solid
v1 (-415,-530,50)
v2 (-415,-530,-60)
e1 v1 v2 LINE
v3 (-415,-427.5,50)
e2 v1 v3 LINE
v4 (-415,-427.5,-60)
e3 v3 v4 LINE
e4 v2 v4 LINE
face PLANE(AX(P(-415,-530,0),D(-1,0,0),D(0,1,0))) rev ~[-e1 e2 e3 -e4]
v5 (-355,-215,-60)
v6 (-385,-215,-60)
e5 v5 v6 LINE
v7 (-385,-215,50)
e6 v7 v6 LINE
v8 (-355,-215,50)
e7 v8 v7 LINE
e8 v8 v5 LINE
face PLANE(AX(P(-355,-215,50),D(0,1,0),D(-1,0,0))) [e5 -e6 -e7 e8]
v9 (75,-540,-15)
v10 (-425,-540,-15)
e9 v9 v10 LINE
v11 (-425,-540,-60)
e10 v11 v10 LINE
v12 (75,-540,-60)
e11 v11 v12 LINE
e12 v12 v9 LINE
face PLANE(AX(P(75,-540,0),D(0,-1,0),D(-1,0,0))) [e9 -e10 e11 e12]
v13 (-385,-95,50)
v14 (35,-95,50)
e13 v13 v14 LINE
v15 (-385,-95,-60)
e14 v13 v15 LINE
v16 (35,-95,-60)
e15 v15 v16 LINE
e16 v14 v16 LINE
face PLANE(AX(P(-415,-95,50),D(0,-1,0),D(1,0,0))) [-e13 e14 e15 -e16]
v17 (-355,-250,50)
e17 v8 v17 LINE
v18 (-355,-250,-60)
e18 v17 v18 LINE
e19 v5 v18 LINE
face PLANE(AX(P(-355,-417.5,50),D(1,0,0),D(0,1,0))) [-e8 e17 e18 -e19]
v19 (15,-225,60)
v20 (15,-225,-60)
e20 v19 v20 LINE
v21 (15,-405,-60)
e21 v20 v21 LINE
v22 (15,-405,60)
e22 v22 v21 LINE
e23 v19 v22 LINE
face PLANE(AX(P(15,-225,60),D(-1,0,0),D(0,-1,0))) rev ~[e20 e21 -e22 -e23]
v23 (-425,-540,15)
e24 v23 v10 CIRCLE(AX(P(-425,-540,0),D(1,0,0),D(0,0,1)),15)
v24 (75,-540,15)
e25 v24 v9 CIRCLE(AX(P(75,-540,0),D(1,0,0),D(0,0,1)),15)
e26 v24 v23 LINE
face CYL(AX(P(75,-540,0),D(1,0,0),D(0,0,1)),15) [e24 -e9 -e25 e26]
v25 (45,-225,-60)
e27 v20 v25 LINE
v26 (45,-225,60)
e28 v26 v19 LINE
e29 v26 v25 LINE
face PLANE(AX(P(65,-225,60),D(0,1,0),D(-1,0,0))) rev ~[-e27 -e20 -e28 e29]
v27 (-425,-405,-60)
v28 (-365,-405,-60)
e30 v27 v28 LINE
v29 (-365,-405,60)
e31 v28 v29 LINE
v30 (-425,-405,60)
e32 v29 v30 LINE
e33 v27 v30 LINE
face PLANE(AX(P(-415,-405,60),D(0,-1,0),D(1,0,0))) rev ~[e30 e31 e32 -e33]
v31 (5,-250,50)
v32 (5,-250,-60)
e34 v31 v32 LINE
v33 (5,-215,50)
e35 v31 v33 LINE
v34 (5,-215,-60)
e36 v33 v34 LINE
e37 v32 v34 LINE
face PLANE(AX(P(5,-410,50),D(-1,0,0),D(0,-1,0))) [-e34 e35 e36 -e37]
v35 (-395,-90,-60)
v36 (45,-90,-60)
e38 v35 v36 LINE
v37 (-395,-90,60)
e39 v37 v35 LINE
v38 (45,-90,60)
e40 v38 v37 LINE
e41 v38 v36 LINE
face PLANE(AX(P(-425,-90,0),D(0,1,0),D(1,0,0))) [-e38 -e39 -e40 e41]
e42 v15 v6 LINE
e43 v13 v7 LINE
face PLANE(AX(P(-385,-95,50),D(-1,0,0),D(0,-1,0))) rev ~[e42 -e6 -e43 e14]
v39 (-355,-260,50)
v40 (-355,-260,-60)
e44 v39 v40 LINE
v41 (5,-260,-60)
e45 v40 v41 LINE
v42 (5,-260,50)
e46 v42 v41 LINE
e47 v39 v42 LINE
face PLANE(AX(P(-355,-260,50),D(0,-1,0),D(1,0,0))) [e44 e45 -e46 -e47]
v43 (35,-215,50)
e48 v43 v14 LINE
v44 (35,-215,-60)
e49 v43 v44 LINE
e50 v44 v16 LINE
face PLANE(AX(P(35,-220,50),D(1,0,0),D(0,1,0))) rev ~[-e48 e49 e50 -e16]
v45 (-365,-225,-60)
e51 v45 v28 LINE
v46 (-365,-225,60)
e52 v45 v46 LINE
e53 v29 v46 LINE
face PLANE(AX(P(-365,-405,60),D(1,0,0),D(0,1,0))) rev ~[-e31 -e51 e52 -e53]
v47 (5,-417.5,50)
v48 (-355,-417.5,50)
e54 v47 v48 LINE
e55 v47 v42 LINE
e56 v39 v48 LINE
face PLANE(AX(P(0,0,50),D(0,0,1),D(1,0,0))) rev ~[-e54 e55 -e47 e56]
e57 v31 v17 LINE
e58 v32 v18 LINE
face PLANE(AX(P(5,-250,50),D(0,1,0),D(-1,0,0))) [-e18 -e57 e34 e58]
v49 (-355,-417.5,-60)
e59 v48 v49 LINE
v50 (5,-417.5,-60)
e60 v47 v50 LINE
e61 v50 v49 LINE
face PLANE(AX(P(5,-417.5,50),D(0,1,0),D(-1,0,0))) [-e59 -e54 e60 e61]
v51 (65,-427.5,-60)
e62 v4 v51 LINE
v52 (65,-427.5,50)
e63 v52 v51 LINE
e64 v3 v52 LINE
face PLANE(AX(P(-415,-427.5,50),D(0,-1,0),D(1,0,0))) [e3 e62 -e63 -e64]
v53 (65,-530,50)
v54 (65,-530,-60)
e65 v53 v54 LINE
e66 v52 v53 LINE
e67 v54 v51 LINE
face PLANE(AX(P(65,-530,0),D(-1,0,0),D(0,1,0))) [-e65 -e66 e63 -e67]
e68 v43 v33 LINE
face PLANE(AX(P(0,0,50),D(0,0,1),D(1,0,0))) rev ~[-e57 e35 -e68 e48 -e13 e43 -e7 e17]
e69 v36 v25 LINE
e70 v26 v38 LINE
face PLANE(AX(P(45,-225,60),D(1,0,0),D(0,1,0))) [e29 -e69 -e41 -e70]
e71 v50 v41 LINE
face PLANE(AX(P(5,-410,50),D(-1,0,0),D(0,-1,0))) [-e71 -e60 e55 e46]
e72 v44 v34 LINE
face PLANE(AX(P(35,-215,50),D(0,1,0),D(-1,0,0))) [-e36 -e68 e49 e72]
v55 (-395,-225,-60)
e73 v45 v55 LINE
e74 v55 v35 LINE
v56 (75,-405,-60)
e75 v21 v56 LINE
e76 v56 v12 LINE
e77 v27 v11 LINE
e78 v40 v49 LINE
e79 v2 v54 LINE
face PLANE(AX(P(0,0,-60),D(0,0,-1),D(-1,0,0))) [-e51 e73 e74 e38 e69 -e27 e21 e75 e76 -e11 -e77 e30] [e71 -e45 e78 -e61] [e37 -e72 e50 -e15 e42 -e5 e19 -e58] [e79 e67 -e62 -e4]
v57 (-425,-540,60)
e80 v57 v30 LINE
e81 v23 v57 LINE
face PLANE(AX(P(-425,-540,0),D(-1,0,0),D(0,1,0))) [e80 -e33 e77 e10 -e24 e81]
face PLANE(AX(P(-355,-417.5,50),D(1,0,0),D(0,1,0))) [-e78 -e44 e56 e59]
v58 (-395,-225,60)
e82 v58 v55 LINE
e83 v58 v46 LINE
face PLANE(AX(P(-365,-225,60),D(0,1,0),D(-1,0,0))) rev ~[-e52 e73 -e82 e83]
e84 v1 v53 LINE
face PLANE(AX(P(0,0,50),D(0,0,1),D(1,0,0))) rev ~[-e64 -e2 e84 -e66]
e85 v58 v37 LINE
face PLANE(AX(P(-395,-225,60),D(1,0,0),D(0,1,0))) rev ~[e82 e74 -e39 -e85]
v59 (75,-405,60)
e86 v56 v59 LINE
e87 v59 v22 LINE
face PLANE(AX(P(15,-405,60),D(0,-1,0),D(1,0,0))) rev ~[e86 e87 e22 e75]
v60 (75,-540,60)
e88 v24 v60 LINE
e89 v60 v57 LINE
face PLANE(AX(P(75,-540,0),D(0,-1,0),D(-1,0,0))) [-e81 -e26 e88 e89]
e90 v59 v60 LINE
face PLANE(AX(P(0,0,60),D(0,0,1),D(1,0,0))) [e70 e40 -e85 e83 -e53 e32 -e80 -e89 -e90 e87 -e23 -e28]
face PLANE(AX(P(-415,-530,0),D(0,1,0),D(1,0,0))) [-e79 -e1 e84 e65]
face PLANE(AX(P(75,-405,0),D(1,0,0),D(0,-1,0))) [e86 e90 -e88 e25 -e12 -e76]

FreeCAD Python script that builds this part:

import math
import FreeCAD as App
import Part
import Sketcher
from FreeCAD import Vector
Q = App.Units.Quantity


def add_polygon(sketch, points):
    """Adds a closed chain of lines whose ends are joined by coincident constraints."""
    first, n = sketch.GeometryCount, len(points)
    for a, b in zip(points, points[1:] + points[:1]):
        sketch.addGeometry(Part.LineSegment(App.Vector(*a, 0), App.Vector(*b, 0)), False)
    for i in range(n):
        sketch.addConstraint(Sketcher.Constraint("Coincident", first + i, 2, first + (i + 1) % n, 1))

doc = App.newDocument("Part")
params = doc.addObject("Spreadsheet::Sheet", "Params")
for row, (alias, value) in enumerate([
    ("sketch1_width", "10 mm"),
    ("sketch1_width2", "500 mm"),
    ("pad1_length", "120 mm"),
    ("sketch2_width", "50 mm"),
    ("sketch2_height", "180 mm"),
    ("sketch2_width2", "480 mm"),
    ("sketch2_height2", "125 mm"),
    ("pad2_length", "10 mm"),
    ("sketch3_width", "60 mm"),
    ("sketch3_height", "5 mm"),
    ("sketch3_height2", "190 mm"),
    ("sketch3_width2", "50 mm"),
    ("pad3_length", "110 mm"),
    ("sketch4_height", "5 mm"),
    ("sketch4_width", "480 mm"),
    ("pocket1_length", "110 mm"),
    ("sketch5_width", "480 mm"),
    ("sketch5_height", "17.5 mm"),
    ("sketch5_height2", "7.5 mm"),
    ("sketch5_width2", "60 mm"),
    ("pad4_length", "110 mm"),
    ("sketch6_height", "10 mm"),
    ("sketch6_width", "360 mm"),
    ("pad5_length", "110 mm"),
    ("sketch7_width", "30 mm"),
    ("sketch7_height", "135 mm"),
    ("pocket2_length", "120 mm"),
    ("sketch8_width", "10 mm"),
    ("sketch8_height", "125 mm"),
    ("pad6_length", "110 mm"),
    ("sketch9_radius", "15 mm"),
    ("pad7_length", "500 mm"),
    ("sketch10_height", "5 mm"),
    ("sketch10_width", "30 mm"),
    ("pad8_length", "110 mm"),
], start=1):
    params.set(f"A{row}", alias)
    params.set(f"B{row}", "=" + value)
    params.setAlias(f"B{row}", alias)

body = doc.addObject("PartDesign::Body", "Body")
body.AllowCompound = True

sketch1 = doc.addObject("Sketcher::SketchObject", "Sketch")
body.addObject(sketch1)
sketch1.AttachmentSupport = (doc.XY_Plane, [""])
sketch1.MapMode = "FlatFace"
add_polygon(sketch1, [(-415, -100), (65, -100), (65, -225), (75, -225), (75, -90), (-425, -90), (-425, -225), (-415, -225)])
add_polygon(sketch1, [(-415, -405), (-425, -405), (-425, -540), (75, -540), (75, -405), (65, -405), (65, -530), (-415, -530)])
sketch1.addConstraint([
    Sketcher.Constraint("Horizontal", 0),
    Sketcher.Constraint("Vertical", 1),
    Sketcher.Constraint("Horizontal", 2),
    Sketcher.Constraint("Vertical", 3),
    Sketcher.Constraint("Horizontal", 4),
    Sketcher.Constraint("Vertical", 5),
    Sketcher.Constraint("Horizontal", 6),
    Sketcher.Constraint("Vertical", 7),
    Sketcher.Constraint("Horizontal", 8),
    Sketcher.Constraint("Vertical", 9),
    Sketcher.Constraint("Horizontal", 10),
    Sketcher.Constraint("Vertical", 11),
    Sketcher.Constraint("Horizontal", 12),
    Sketcher.Constraint("Vertical", 13),
    Sketcher.Constraint("Horizontal", 14),
    Sketcher.Constraint("Vertical", 15),
    Sketcher.Constraint("Horizontal", 2, 2, 5, 2),
    Sketcher.Constraint("Horizontal", 8, 2, 11, 2),
    Sketcher.Constraint("Vertical", 5, 2, 8, 2),
    Sketcher.Constraint("Vertical", 3, 2, 10, 2),
    Sketcher.Constraint("Vertical", 1, 2, 12, 2),
    Sketcher.Constraint("Vertical", 7, 2, 14, 2),
    Sketcher.Constraint("Equal", 2, 6),
    Sketcher.Constraint("Equal", 5, 9),
    Sketcher.Constraint("Equal", 7, 13),
    Sketcher.Constraint("DistanceX", 2, 1, 2, 2, Q("10 mm")),
    Sketcher.Constraint("DistanceX", 4, 2, 4, 1, Q("500 mm")),
    Sketcher.Constraint("DistanceY", 3, 2, -1, 1, Q("90 mm")),
    Sketcher.Constraint("DistanceY", 0, 2, 3, 2, Q("10 mm")),
    Sketcher.Constraint("DistanceY", 8, 2, 5, 2, Q("180 mm")),
    Sketcher.Constraint("DistanceY", 9, 2, 4, 2, Q("450 mm")),
    Sketcher.Constraint("DistanceX", -1, 1, 0, 2, Q("65 mm")),
])
sketch1.setExpression("Constraints[41]", "Params.sketch1_width")
sketch1.setExpression("Constraints[42]", "Params.sketch1_width2")
pad1 = doc.addObject("PartDesign::Pad", "Pad")
body.addObject(pad1)
pad1.Profile = sketch1
pad1.setExpression("Length", "Params.pad1_length")
pad1.Midplane = True

sketch2 = doc.addObject("Sketcher::SketchObject", "Sketch001")
body.addObject(sketch2)
sketch2.AttachmentSupport = (doc.XY_Plane, [""])
sketch2.MapMode = "FlatFace"
sketch2.AttachmentOffset = App.Placement(Vector(0, 0, 60), App.Rotation())
add_polygon(sketch2, [(65, -100), (-415, -100), (-415, -225), (-365, -225), (-365, -405), (-415, -405), (-415, -530), (65, -530), (65, -405), (15, -405), (15, -225), (65, -225)])
sketch2.addConstraint([
    Sketcher.Constraint("Horizontal", 0),
    Sketcher.Constraint("Vertical", 1),
    Sketcher.Constraint("Horizontal", 2),
    Sketcher.Constraint("Vertical", 3),
    Sketcher.Constraint("Horizontal", 4),
    Sketcher.Constraint("Vertical", 5),
    Sketcher.Constraint("Horizontal", 6),
    Sketcher.Constraint("Vertical", 7),
    Sketcher.Constraint("Horizontal", 8),
    Sketcher.Constraint("Vertical", 9),
    Sketcher.Constraint("Horizontal", 10),
    Sketcher.Constraint("Vertical", 11),
    Sketcher.Constraint("Horizontal", 4, 2, 7, 2),
    Sketcher.Constraint("Horizontal", 2, 2, 9, 2),
    Sketcher.Constraint("Vertical", 1, 2, 4, 2),
    Sketcher.Constraint("Vertical", 7, 2, 10, 2),
    Sketcher.Constraint("Equal", 4, 8),
    Sketcher.Constraint("Equal", 1, 5),
    Sketcher.Constraint("DistanceX", 2, 1, 2, 2, Q("50 mm")),
    Sketcher.Constraint("DistanceY", 3, 2, 3, 1, Q("180 mm")),
    Sketcher.Constraint("DistanceX", 0, 2, 0, 1, Q("480 mm")),
    Sketcher.Constraint("DistanceY", 1, 2, 1, 1, Q("125 mm")),
    Sketcher.Constraint("DistanceX", 0, 2, -1, 1, Q("415 mm")),
    Sketcher.Constraint("DistanceY", 0, 2, -1, 1, Q("100 mm")),
])
sketch2.setExpression("Constraints[30]", "Params.sketch2_width")
sketch2.setExpression("Constraints[31]", "Params.sketch2_height")
sketch2.setExpression("Constraints[32]", "Params.sketch2_width2")
sketch2.setExpression("Constraints[33]", "Params.sketch2_height2")
pad2 = doc.addObject("PartDesign::Pad", "Pad001")
body.addObject(pad2)
pad2.Profile = sketch2
pad2.setExpression("Length", "Params.pad2_length")
pad2.Reversed = True

sketch3 = doc.addObject("Sketcher::SketchObject", "Sketch002")
body.addObject(sketch3)
sketch3.AttachmentSupport = (doc.XY_Plane, [""])
sketch3.MapMode = "FlatFace"
sketch3.AttachmentOffset = App.Placement(Vector(0, 0, 50), App.Rotation())
add_polygon(sketch3, [(-415, -410), (-415, -405), (-365, -405), (-365, -225), (-415, -225), (-415, -220), (-355, -220), (-355, -410)])
add_polygon(sketch3, [(65, -220), (65, -225), (15, -225), (15, -405), (65, -405), (65, -410), (5, -410), (5, -220)])
sketch3.addConstraint([
    Sketcher.Constraint("Vertical", 0),
    Sketcher.Constraint("Horizontal", 1),
    Sketcher.Constraint("Vertical", 2),
    Sketcher.Constraint("Horizontal", 3),
    Sketcher.Constraint("Vertical", 4),
    Sketcher.Constraint("Horizontal", 5),
    Sketcher.Constraint("Vertical", 6),
    Sketcher.Constraint("Horizontal", 7),
    Sketcher.Constraint("Vertical", 8),
    Sketcher.Constraint("Horizontal", 9),
    Sketcher.Constraint("Vertical", 10),
    Sketcher.Constraint("Horizontal", 11),
    Sketcher.Constraint("Vertical", 12),
    Sketcher.Constraint("Horizontal", 13),
    Sketcher.Constraint("Vertical", 14),
    Sketcher.Constraint("Horizontal", 15),
    Sketcher.Constraint("Horizontal", 3, 2, 8, 2),
    Sketcher.Constraint("Horizontal", 1, 2, 10, 2),
    Sketcher.Constraint("Horizontal", 7, 2, 12, 2),
    Sketcher.Constraint("Horizontal", 5, 2, 14, 2),
    Sketcher.Constraint("Vertical", 0, 2, 3, 2),
    Sketcher.Constraint("Vertical", 8, 2, 11, 2),
    Sketcher.Constraint("Equal", 3, 9),
    Sketcher.Constraint("Equal", 7, 13),
    Sketcher.Constraint("Equal", 0, 4),
    Sketcher.Constraint("DistanceX", 5, 1, 5, 2, Q("60 mm")),
    Sketcher.Constraint("DistanceY", 0, 1, 0, 2, Q("5 mm")),
    Sketcher.Constraint("DistanceY", 6, 2, 6, 1, Q("190 mm")),
    Sketcher.Constraint("DistanceX", -1, 1, 13, 2, Q("5 mm")),
    Sketcher.Constraint("DistanceX", 1, 1, 1, 2, Q("50 mm")),
    Sketcher.Constraint("DistanceX", 0, 2, -1, 1, Q("415 mm")),
    Sketcher.Constraint("DistanceY", 0, 2, -1, 1, Q("405 mm")),
])
sketch3.setExpression("Constraints[41]", "Params.sketch3_width")
sketch3.setExpression("Constraints[42]", "Params.sketch3_height")
sketch3.setExpression("Constraints[43]", "Params.sketch3_height2")
sketch3.setExpression("Constraints[45]", "Params.sketch3_width2")
pad3 = doc.addObject("PartDesign::Pad", "Pad002")
body.addObject(pad3)
pad3.Profile = sketch3
pad3.setExpression("Length", "Params.pad3_length")
pad3.Reversed = True

sketch4 = doc.addObject("Sketcher::SketchObject", "Sketch003")
body.addObject(sketch4)
sketch4.AttachmentSupport = (doc.XY_Plane, [""])
sketch4.MapMode = "FlatFace"
sketch4.AttachmentOffset = App.Placement(Vector(0, 0, 50), App.Rotation())
add_polygon(sketch4, [(65, -100), (-415, -100), (-415, -95), (65, -95)])
sketch4.addConstraint([
    Sketcher.Constraint("Horizontal", 0),
    Sketcher.Constraint("Vertical", 1),
    Sketcher.Constraint("Horizontal", 2),
    Sketcher.Constraint("Vertical", 3),
    Sketcher.Constraint("DistanceY", 1, 1, 1, 2, Q("5 mm")),
    Sketcher.Constraint("DistanceX", 0, 2, 0, 1, Q("480 mm")),
    Sketcher.Constraint("DistanceX", 0, 2, -1, 1, Q("415 mm")),
    Sketcher.Constraint("DistanceY", 0, 2, -1, 1, Q("100 mm")),
])
sketch4.setExpression("Constraints[8]", "Params.sketch4_height")
sketch4.setExpression("Constraints[9]", "Params.sketch4_width")
pocket1 = doc.addObject("PartDesign::Pocket", "Pocket")
body.addObject(pocket1)
pocket1.Profile = sketch4
pocket1.setExpression("Length", "Params.pocket1_length")

sketch5 = doc.addObject("Sketcher::SketchObject", "Sketch004")
body.addObject(sketch5)
sketch5.AttachmentSupport = (doc.XY_Plane, [""])
sketch5.MapMode = "FlatFace"
sketch5.AttachmentOffset = App.Placement(Vector(0, 0, 50), App.Rotation())
add_polygon(sketch5, [(-415, -428), (-415, -410), (-355, -410), (-355, -418), (5, -418), (5, -410), (65, -410), (65, -428)])
sketch5.addConstraint([
    Sketcher.Constraint("Vertical", 0),
    Sketcher.Constraint("Horizontal", 1),
    Sketcher.Constraint("Vertical", 2),
    Sketcher.Constraint("Horizontal", 3),
    Sketcher.Constraint("Vertical", 4),
    Sketcher.Constraint("Horizontal", 5),
    Sketcher.Constraint("Vertical", 6),
    Sketcher.Constraint("Horizontal", 7),
    Sketcher.Constraint("Horizontal", 1, 2, 4, 2),
    Sketcher.Constraint("Equal", 1, 5),
    Sketcher.Constraint("DistanceX", 7, 2, 7, 1, Q("480 mm")),
    Sketcher.Constraint("DistanceY", 0, 1, 0, 2, Q("17.5 mm")),
    Sketcher.Constraint("DistanceY", 2, 2, 2, 1, Q("7.5 mm")),
    Sketcher.Constraint("DistanceX", 1, 1, 1, 2, Q("60 mm")),
    Sketcher.Constraint("DistanceX", 0, 2, -1, 1, Q("415 mm")),
    Sketcher.Constraint("DistanceY", 0, 2, -1, 1, Q("410 mm")),
])
sketch5.setExpression("Constraints[18]", "Params.sketch5_width")
sketch5.setExpression("Constraints[19]", "Params.sketch5_height")
sketch5.setExpression("Constraints[20]", "Params.sketch5_height2")
sketch5.setExpression("Constraints[21]", "Params.sketch5_width2")
pad4 = doc.addObject("PartDesign::Pad", "Pad003")
body.addObject(pad4)
pad4.Profile = sketch5
pad4.setExpression("Length", "Params.pad4_length")
pad4.Reversed = True

sketch6 = doc.addObject("Sketcher::SketchObject", "Sketch005")
body.addObject(sketch6)
sketch6.AttachmentSupport = (doc.XY_Plane, [""])
sketch6.MapMode = "FlatFace"
sketch6.AttachmentOffset = App.Placement(Vector(0, 0, 50), App.Rotation())
add_polygon(sketch6, [(-355, -260), (-355, -250), (5, -250), (5, -260)])
sketch6.addConstraint([
    Sketcher.Constraint("Vertical", 0),
    Sketcher.Constraint("Horizontal", 1),
    Sketcher.Constraint("Vertical", 2),
    Sketcher.Constraint("Horizontal", 3),
    Sketcher.Constraint("DistanceY", 0, 1, 0, 2, Q("10 mm")),
    Sketcher.Constraint("DistanceX", 1, 1, 1, 2, Q("360 mm")),
    Sketcher.Constraint("DistanceX", 0, 2, -1, 1, Q("355 mm")),
    Sketcher.Constraint("DistanceY", 0, 2, -1, 1, Q("250 mm")),
])
sketch6.setExpression("Constraints[8]", "Params.sketch6_height")
sketch6.setExpression("Constraints[9]", "Params.sketch6_width")
pad5 = doc.addObject("PartDesign::Pad", "Pad004")
body.addObject(pad5)
pad5.Profile = sketch6
pad5.setExpression("Length", "Params.pad5_length")
pad5.Reversed = True

sketch7 = doc.addObject("Sketcher::SketchObject", "Sketch006")
body.addObject(sketch7)
sketch7.AttachmentSupport = (doc.XY_Plane, [""])
sketch7.MapMode = "FlatFace"
sketch7.AttachmentOffset = App.Placement(Vector(0, 0, 60), App.Rotation())
add_polygon(sketch7, [(45, -90), (45, -225), (75, -225), (75, -90)])
add_polygon(sketch7, [(-395, -225), (-395, -90), (-425, -90), (-425, -225)])
sketch7.addConstraint([
    Sketcher.Constraint("Vertical", 0),
    Sketcher.Constraint("Horizontal", 1),
    Sketcher.Constraint("Vertical", 2),
    Sketcher.Constraint("Horizontal", 3),
    Sketcher.Constraint("Vertical", 4),
    Sketcher.Constraint("Horizontal", 5),
    Sketcher.Constraint("Vertical", 6),
    Sketcher.Constraint("Horizontal", 7),
    Sketcher.Constraint("Horizontal", 3, 2, 4, 2),
    Sketcher.Constraint("Horizontal", 1, 2, 6, 2),
    Sketcher.Constraint("Equal", 3, 5),
    Sketcher.Constraint("DistanceX", 1, 1, 1, 2, Q("30 mm")),
    Sketcher.Constraint("DistanceY", 0, 2, 0, 1, Q("135 mm")),
    Sketcher.Constraint("DistanceX", -1, 1, 0, 2, Q("45 mm")),
    Sketcher.Constraint("DistanceY", 0, 2, -1, 1, Q("225 mm")),
    Sketcher.Constraint("DistanceX", 4, 2, -1, 1, Q("395 mm")),
])
sketch7.setExpression("Constraints[19]", "Params.sketch7_width")
sketch7.setExpression("Constraints[20]", "Params.sketch7_height")
pocket2 = doc.addObject("PartDesign::Pocket", "Pocket001")
body.addObject(pocket2)
pocket2.Profile = sketch7
pocket2.setExpression("Length", "Params.pocket2_length")

sketch8 = doc.addObject("Sketcher::SketchObject", "Sketch007")
body.addObject(sketch8)
sketch8.AttachmentSupport = (doc.XY_Plane, [""])
sketch8.MapMode = "FlatFace"
sketch8.AttachmentOffset = App.Placement(Vector(0, 0, 50), App.Rotation())
add_polygon(sketch8, [(35, -95), (45, -95), (45, -220), (35, -220)])
add_polygon(sketch8, [(-395, -95), (-385, -95), (-385, -220), (-395, -220)])
sketch8.addConstraint([
    Sketcher.Constraint("Horizontal", 0),
    Sketcher.Constraint("Vertical", 1),
    Sketcher.Constraint("Horizontal", 2),
    Sketcher.Constraint("Vertical", 3),
    Sketcher.Constraint("Horizontal", 4),
    Sketcher.Constraint("Vertical", 5),
    Sketcher.Constraint("Horizontal", 6),
    Sketcher.Constraint("Vertical", 7),
    Sketcher.Constraint("Horizontal", 3, 2, 4, 2),
    Sketcher.Constraint("Horizontal", 2, 2, 5, 2),
    Sketcher.Constraint("Equal", 2, 4),
    Sketcher.Constraint("DistanceX", 0, 1, 0, 2, Q("10 mm")),
    Sketcher.Constraint("DistanceY", 1, 2, 1, 1, Q("125 mm")),
    Sketcher.Constraint("DistanceX", -1, 1, 0, 2, Q("45 mm")),
    Sketcher.Constraint("DistanceY", 0, 2, -1, 1, Q("95 mm")),
    Sketcher.Constraint("DistanceX", 4, 2, -1, 1, Q("385 mm")),
])
sketch8.setExpression("Constraints[19]", "Params.sketch8_width")
sketch8.setExpression("Constraints[20]", "Params.sketch8_height")
pad6 = doc.addObject("PartDesign::Pad", "Pad005")
body.addObject(pad6)
pad6.Profile = sketch8
pad6.setExpression("Length", "Params.pad6_length")
pad6.Reversed = True

sketch9 = doc.addObject("Sketcher::SketchObject", "Sketch008")
body.addObject(sketch9)
sketch9.AttachmentSupport = (doc.YZ_Plane, [""])
sketch9.MapMode = "FlatFace"
sketch9.AttachmentOffset = App.Placement(Vector(0, 0, 75), App.Rotation())
sketch9.addGeometry([
    Part.LineSegment(Vector(-540, -15, 0), Vector(-540, 15, 0)),
    Part.ArcOfCircle(Part.Circle(Vector(-540, 0, 0), Vector(0, 0, 1), 15), math.radians(90), math.radians(270)),
], False)
sketch9.addConstraint([
    Sketcher.Constraint("Coincident", 0, 1, 1, 2),
    Sketcher.Constraint("Coincident", 1, 1, 0, 2),
    Sketcher.Constraint("Vertical", 0),
    Sketcher.Constraint("PointOnObject", 1, 3, -1),
    Sketcher.Constraint("Vertical", 1, 3, 0, 1),
    Sketcher.Constraint("Radius", 1, Q("15 mm")),
    Sketcher.Constraint("DistanceX", 1, 3, -1, 1, Q("540 mm")),
])
sketch9.setExpression("Constraints[5]", "Params.sketch9_radius")
pad7 = doc.addObject("PartDesign::Pad", "Pad006")
body.addObject(pad7)
pad7.Profile = sketch9
pad7.setExpression("Length", "Params.pad7_length")
pad7.Reversed = True

sketch10 = doc.addObject("Sketcher::SketchObject", "Sketch009")
body.addObject(sketch10)
sketch10.AttachmentSupport = (doc.XY_Plane, [""])
sketch10.MapMode = "FlatFace"
sketch10.AttachmentOffset = App.Placement(Vector(0, 0, 50), App.Rotation())
add_polygon(sketch10, [(35, -215), (35, -220), (5, -220), (5, -215)])
add_polygon(sketch10, [(-355, -220), (-385, -220), (-385, -215), (-355, -215)])
sketch10.addConstraint([
    Sketcher.Constraint("Vertical", 0),
    Sketcher.Constraint("Horizontal", 1),
    Sketcher.Constraint("Vertical", 2),
    Sketcher.Constraint("Horizontal", 3),
    Sketcher.Constraint("Horizontal", 4),
    Sketcher.Constraint("Vertical", 5),
    Sketcher.Constraint("Horizontal", 6),
    Sketcher.Constraint("Vertical", 7),
    Sketcher.Constraint("Horizontal", 1, 2, 4, 2),
    Sketcher.Constraint("Horizontal", 3, 2, 5, 2),
    Sketcher.Constraint("Equal", 3, 4),
    Sketcher.Constraint("DistanceY", 0, 2, 0, 1, Q("5 mm")),
    Sketcher.Constraint("DistanceX", -1, 1, 1, 2, Q("5 mm")),
    Sketcher.Constraint("DistanceX", 1, 2, 1, 1, Q("30 mm")),
    Sketcher.Constraint("DistanceY", 0, 2, -1, 1, Q("220 mm")),
    Sketcher.Constraint("DistanceX", 4, 2, -1, 1, Q("385 mm")),
])
sketch10.setExpression("Constraints[19]", "Params.sketch10_height")
sketch10.setExpression("Constraints[21]", "Params.sketch10_width")
pad8 = doc.addObject("PartDesign::Pad", "Pad007")
body.addObject(pad8)
pad8.Profile = sketch10
pad8.setExpression("Length", "Params.pad8_length")
pad8.Reversed = True

doc.recompute()
